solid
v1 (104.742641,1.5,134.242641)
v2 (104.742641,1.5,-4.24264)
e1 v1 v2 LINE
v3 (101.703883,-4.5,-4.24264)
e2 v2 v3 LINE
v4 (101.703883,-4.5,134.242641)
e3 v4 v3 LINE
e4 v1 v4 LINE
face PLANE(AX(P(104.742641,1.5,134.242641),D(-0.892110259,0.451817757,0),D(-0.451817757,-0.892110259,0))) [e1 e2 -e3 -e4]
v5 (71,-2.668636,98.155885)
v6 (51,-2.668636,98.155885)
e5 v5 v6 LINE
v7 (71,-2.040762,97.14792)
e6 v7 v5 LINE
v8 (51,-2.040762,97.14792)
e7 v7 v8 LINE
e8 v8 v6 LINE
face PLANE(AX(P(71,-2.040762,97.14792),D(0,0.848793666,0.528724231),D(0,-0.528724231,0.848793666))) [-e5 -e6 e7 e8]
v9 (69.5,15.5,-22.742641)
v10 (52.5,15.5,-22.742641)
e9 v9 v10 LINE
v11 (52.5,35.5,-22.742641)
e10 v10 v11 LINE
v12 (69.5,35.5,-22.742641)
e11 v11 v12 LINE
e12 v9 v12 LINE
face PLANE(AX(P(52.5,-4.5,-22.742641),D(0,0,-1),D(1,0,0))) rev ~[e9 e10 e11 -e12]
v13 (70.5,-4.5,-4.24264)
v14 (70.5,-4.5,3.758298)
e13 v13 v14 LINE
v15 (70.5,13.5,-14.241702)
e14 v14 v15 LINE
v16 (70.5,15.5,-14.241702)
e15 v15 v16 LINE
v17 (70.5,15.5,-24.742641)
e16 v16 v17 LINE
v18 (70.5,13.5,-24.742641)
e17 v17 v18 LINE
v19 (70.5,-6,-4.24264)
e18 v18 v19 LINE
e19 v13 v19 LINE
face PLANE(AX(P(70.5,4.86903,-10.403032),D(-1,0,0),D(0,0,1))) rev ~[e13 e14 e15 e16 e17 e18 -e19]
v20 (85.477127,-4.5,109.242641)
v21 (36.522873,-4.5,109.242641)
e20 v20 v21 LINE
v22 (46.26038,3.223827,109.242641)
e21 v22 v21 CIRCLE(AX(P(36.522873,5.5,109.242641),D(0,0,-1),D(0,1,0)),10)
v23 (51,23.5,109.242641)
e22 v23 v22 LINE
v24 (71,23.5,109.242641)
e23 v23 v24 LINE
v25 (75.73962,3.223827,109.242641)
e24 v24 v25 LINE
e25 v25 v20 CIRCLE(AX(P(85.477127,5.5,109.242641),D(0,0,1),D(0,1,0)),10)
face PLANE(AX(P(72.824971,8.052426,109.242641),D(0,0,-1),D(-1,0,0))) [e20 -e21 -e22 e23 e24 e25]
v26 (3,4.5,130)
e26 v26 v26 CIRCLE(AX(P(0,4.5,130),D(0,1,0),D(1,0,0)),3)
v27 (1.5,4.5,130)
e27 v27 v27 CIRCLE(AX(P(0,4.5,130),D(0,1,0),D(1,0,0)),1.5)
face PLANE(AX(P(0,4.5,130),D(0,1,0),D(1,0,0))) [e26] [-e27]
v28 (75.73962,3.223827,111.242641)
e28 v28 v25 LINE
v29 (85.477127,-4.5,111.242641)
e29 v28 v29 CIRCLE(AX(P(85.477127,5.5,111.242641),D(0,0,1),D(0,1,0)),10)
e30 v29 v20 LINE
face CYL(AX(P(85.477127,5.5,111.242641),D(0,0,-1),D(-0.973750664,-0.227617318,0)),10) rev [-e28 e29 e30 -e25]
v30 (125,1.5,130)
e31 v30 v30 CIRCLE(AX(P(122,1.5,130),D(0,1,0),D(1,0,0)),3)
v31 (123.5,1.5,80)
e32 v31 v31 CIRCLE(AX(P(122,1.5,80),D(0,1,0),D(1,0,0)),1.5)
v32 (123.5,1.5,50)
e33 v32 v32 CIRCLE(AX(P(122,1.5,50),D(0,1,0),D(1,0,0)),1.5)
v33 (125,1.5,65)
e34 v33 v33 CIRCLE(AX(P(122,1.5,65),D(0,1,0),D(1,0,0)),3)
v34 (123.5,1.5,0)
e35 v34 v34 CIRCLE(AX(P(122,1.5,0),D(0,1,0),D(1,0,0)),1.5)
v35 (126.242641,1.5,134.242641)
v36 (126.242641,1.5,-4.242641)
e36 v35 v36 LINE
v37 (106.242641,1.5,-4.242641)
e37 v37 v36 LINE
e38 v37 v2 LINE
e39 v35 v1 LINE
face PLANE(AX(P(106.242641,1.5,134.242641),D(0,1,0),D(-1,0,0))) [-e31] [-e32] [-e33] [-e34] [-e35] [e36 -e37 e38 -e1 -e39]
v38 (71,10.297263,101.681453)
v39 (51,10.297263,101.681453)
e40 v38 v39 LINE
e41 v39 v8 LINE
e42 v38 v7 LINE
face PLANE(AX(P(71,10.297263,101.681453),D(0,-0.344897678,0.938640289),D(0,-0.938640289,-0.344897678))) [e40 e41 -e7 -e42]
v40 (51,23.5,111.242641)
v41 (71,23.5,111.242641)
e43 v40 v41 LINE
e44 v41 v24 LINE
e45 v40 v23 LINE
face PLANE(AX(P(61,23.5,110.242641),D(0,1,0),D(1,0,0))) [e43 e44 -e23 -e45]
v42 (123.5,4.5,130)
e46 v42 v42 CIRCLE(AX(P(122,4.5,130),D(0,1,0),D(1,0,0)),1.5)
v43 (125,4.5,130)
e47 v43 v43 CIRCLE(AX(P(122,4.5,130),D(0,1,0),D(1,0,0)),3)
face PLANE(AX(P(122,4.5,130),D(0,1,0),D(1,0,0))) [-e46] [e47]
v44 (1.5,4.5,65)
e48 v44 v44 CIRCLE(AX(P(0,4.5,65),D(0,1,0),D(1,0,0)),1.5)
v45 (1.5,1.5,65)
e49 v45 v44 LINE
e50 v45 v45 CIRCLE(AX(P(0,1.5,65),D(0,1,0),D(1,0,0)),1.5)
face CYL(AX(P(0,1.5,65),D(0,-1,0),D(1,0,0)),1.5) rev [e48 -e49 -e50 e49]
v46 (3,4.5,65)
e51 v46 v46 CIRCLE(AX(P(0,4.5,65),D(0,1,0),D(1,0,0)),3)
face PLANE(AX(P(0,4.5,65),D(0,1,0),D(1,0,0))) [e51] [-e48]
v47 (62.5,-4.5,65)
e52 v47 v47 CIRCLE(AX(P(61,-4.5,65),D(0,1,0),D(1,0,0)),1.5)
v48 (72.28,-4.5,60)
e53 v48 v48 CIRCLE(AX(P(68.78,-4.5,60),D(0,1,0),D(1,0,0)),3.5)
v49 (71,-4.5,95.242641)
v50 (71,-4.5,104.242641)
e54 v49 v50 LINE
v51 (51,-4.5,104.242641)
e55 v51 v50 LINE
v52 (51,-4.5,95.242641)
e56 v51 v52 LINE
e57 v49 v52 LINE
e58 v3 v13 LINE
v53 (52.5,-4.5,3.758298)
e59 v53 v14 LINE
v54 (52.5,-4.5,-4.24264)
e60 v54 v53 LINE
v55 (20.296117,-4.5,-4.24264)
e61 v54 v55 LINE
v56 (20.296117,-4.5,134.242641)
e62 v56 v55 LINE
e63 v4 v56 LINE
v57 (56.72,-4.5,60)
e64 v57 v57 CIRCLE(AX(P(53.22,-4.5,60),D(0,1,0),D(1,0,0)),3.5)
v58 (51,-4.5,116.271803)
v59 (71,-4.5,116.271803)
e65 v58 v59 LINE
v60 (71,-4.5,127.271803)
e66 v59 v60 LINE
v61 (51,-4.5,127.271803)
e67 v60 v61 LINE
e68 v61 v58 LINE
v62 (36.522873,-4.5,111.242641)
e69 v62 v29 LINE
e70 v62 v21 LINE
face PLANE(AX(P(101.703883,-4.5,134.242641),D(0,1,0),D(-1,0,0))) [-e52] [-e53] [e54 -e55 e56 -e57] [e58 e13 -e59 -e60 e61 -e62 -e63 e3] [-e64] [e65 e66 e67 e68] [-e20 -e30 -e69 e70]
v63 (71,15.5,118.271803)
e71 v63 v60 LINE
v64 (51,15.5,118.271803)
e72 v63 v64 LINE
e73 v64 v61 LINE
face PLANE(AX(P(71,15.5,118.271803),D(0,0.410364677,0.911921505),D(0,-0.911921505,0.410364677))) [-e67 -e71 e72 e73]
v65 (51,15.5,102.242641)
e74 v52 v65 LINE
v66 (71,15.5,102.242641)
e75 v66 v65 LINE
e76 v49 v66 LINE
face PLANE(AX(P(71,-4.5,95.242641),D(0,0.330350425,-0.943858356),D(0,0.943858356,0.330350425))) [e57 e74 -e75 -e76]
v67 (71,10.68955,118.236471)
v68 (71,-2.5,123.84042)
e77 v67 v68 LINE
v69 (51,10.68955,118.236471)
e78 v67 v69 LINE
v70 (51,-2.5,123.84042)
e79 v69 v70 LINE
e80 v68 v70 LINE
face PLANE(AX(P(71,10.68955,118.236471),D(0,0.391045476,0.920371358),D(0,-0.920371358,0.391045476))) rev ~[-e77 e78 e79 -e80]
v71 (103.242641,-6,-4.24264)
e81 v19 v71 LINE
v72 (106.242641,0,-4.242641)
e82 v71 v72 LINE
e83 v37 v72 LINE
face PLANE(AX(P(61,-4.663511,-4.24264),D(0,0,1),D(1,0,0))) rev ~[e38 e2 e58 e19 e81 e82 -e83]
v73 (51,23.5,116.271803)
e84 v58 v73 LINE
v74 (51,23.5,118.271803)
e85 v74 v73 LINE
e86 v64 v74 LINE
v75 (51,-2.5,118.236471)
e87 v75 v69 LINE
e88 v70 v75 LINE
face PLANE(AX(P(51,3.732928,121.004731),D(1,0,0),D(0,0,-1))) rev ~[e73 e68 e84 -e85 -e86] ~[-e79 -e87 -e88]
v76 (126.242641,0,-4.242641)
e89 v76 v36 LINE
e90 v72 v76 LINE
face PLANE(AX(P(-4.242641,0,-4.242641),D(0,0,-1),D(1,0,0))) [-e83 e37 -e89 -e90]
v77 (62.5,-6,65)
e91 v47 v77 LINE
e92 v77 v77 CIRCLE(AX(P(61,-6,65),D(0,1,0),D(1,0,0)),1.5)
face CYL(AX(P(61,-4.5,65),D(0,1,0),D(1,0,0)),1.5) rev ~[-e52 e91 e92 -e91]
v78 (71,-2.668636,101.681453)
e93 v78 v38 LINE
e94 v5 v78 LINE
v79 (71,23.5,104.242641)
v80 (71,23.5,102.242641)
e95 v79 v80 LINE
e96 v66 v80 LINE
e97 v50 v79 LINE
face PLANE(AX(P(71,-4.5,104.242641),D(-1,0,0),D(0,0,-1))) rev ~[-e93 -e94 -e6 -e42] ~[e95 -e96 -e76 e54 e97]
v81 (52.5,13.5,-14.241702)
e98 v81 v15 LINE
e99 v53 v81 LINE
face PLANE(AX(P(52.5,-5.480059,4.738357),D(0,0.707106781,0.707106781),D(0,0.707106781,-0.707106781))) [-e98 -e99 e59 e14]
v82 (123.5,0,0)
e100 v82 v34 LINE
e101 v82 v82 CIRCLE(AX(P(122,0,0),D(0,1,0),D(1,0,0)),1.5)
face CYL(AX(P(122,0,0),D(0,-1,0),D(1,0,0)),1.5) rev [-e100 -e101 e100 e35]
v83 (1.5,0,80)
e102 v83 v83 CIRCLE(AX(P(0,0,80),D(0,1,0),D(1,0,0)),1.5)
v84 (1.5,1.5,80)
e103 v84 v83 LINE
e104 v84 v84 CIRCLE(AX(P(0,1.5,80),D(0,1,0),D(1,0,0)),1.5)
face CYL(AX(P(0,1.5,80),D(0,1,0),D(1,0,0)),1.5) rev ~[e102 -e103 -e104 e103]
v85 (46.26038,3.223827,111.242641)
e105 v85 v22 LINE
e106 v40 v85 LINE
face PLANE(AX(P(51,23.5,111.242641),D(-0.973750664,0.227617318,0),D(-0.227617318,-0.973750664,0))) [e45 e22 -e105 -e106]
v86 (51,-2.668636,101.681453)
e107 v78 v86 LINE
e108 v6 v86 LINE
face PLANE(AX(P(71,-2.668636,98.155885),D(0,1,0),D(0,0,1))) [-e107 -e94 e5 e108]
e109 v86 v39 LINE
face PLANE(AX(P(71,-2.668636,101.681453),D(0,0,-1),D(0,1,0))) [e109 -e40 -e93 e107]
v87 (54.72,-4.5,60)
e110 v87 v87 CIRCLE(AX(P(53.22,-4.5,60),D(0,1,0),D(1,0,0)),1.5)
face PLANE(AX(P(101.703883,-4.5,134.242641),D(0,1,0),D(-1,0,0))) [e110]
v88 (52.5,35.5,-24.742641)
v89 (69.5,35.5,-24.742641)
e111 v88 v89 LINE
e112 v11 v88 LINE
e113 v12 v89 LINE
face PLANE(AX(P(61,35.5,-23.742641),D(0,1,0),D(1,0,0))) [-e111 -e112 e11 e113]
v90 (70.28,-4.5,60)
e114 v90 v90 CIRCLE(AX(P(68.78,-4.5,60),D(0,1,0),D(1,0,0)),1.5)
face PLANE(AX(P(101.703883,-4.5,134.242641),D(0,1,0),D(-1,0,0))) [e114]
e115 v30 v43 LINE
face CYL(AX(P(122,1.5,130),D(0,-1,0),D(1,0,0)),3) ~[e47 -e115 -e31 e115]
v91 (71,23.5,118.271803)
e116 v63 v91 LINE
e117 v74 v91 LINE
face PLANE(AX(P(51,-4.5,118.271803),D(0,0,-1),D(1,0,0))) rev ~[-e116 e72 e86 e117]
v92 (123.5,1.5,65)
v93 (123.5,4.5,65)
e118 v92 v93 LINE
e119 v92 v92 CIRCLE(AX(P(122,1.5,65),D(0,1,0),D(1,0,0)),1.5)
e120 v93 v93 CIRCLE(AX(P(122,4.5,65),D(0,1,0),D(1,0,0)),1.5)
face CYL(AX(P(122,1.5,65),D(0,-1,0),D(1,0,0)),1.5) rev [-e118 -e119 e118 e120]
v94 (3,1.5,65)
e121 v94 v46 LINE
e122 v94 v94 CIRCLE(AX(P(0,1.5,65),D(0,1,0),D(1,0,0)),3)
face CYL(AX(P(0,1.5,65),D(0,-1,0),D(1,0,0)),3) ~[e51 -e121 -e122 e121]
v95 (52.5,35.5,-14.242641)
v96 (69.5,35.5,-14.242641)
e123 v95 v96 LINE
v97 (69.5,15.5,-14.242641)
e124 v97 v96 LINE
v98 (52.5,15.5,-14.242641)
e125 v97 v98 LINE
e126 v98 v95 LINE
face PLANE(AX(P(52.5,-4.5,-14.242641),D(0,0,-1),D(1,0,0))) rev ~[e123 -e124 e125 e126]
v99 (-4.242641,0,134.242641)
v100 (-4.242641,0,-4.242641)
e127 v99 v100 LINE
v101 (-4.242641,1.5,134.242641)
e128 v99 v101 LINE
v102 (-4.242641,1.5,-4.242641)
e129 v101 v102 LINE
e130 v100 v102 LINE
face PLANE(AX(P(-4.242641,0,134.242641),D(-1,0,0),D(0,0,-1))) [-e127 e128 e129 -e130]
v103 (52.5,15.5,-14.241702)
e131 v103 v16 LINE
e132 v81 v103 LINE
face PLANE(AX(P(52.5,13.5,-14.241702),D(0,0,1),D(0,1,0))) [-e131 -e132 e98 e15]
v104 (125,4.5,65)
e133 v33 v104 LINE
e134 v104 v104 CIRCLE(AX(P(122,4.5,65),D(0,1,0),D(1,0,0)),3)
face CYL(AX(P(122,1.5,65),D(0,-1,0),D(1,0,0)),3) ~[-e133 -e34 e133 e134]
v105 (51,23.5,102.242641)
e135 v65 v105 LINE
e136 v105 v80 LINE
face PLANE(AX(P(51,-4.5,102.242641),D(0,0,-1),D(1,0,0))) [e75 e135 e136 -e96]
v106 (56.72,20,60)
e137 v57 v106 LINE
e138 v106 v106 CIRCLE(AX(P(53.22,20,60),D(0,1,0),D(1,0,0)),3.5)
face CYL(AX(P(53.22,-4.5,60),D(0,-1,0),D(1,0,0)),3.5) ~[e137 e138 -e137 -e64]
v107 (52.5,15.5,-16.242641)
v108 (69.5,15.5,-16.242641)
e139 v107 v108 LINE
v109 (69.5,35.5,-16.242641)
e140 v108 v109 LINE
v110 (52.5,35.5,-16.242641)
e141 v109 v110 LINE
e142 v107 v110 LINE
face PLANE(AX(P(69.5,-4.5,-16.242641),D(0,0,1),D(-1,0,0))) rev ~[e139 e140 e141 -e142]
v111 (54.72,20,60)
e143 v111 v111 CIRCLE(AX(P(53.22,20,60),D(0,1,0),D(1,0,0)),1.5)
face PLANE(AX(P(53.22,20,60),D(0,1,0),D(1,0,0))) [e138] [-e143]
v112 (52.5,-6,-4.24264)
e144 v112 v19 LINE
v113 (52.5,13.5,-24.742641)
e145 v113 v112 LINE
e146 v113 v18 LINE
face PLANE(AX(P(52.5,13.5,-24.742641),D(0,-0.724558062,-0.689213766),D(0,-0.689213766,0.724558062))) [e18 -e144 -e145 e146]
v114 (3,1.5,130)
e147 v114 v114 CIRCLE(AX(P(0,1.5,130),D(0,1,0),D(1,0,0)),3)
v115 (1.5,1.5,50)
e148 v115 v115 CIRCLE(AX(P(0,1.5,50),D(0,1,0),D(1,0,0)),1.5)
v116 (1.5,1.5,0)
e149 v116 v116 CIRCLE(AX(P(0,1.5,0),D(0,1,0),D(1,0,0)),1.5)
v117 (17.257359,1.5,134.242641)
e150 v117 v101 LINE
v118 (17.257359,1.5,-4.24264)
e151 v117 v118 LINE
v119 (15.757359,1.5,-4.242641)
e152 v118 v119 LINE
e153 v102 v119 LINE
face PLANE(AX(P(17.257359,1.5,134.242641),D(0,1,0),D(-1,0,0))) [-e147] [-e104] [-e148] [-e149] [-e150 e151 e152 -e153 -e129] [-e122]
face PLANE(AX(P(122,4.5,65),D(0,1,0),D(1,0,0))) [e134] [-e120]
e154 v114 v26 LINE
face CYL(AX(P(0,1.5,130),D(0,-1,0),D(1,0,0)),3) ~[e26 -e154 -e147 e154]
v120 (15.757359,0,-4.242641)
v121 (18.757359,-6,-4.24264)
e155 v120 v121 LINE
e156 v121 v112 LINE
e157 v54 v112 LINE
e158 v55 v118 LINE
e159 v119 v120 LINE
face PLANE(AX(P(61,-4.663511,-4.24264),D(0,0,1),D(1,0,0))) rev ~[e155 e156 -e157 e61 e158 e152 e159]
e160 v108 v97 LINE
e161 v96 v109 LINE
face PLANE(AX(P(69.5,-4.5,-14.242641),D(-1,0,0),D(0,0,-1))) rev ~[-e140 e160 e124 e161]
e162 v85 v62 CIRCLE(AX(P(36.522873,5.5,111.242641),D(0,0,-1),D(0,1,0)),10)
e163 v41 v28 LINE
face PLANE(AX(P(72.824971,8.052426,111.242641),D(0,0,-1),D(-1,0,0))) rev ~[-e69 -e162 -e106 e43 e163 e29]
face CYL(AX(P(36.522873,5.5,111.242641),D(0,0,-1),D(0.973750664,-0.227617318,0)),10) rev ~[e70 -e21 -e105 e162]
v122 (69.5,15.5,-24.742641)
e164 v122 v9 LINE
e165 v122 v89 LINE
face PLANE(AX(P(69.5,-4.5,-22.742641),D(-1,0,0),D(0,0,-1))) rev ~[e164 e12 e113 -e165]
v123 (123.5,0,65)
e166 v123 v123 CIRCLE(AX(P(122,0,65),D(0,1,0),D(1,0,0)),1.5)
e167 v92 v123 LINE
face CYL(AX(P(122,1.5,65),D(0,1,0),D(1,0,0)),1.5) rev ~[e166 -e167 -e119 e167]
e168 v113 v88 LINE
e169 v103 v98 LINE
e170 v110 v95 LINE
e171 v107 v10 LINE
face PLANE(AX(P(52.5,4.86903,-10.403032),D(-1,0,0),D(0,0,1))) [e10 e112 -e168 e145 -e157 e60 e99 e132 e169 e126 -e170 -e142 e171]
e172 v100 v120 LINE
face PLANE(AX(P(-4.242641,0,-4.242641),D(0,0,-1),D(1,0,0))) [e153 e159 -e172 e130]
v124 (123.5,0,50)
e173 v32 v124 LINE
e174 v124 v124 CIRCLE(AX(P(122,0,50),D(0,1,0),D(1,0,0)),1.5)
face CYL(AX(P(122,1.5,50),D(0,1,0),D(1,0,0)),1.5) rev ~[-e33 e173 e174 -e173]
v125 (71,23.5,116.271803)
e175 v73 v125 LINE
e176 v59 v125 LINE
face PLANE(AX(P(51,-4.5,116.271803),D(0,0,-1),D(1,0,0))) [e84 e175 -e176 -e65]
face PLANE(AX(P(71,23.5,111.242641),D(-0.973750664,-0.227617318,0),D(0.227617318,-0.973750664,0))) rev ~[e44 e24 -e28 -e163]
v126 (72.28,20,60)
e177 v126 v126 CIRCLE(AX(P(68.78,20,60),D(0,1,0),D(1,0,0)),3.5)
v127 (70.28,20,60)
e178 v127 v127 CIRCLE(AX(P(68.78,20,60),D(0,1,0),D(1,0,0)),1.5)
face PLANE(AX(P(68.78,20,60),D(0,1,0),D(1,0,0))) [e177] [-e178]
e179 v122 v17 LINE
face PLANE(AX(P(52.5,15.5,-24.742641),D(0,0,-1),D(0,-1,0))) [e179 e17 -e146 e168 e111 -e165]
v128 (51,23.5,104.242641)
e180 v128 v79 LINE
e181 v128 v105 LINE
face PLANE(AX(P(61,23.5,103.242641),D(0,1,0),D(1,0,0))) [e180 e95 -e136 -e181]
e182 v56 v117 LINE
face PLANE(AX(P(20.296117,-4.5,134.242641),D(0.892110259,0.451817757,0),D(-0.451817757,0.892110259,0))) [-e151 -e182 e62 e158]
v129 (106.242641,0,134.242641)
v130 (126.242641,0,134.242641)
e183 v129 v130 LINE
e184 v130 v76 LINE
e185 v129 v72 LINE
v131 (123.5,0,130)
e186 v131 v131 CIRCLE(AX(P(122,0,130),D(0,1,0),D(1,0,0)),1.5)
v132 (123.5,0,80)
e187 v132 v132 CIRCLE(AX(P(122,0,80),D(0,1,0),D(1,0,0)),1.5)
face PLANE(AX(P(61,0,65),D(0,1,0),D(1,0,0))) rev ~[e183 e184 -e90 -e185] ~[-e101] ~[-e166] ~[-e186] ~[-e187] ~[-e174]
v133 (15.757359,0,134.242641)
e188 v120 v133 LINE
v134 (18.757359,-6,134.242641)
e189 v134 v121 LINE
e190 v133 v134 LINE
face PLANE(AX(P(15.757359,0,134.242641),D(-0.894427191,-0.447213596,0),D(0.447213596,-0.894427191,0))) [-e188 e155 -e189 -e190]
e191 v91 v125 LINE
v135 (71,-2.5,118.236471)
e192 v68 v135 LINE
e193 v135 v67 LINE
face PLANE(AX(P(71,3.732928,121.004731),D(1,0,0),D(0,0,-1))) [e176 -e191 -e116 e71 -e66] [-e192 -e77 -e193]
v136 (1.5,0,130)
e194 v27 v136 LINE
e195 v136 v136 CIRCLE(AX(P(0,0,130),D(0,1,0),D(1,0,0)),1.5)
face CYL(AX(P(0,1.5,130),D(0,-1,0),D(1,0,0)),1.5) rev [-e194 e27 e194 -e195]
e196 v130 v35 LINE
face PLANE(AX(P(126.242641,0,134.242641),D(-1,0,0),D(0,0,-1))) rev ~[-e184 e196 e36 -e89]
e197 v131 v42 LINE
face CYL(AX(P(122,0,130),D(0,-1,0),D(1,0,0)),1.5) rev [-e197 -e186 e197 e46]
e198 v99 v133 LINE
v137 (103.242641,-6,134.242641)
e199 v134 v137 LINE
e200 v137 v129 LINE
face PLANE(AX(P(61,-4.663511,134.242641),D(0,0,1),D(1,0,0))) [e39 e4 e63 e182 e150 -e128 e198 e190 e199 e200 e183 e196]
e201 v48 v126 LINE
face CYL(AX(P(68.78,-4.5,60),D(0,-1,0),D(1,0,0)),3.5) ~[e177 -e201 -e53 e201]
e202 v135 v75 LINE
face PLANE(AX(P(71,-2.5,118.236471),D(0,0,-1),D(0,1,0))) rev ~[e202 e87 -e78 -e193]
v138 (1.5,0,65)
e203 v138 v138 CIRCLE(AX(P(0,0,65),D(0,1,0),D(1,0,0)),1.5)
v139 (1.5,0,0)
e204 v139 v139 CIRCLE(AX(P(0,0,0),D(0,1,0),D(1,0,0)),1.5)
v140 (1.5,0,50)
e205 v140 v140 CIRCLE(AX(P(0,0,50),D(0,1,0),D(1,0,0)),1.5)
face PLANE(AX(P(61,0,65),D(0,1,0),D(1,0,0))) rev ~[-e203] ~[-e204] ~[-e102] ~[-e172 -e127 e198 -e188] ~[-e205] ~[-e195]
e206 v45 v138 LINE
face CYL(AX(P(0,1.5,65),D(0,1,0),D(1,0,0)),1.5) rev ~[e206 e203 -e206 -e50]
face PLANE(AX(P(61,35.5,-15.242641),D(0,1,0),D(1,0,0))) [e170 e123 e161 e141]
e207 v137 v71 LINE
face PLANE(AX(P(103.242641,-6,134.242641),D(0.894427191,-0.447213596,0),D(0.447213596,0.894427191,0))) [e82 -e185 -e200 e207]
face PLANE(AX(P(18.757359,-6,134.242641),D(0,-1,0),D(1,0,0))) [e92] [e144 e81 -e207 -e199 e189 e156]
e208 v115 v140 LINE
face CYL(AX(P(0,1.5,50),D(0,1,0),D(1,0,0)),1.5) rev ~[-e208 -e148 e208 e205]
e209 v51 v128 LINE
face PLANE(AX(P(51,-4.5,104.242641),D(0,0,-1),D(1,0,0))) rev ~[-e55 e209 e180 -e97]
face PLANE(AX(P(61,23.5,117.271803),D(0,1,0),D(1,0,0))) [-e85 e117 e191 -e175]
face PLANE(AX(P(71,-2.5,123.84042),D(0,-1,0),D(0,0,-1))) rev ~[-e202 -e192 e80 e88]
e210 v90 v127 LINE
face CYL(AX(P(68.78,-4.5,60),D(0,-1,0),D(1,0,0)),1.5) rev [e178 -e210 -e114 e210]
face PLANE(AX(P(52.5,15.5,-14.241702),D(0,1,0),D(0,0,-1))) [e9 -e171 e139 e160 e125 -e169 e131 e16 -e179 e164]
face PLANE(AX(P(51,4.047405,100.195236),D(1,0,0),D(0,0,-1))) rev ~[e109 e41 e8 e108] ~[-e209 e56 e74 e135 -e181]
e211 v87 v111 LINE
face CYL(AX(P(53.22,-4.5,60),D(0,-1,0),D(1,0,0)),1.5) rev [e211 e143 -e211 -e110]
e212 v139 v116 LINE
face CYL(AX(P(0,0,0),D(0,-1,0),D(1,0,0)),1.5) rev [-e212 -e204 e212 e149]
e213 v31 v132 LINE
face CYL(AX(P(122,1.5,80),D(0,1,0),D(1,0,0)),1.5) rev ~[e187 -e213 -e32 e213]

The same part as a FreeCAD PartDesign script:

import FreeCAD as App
import Part
import Sketcher
from FreeCAD import Vector
Q = App.Units.Quantity


def edges_at(feature, points):
    """Names of the edges that pass closest to the given points."""
    edges = feature.Shape.Edges
    near = lambda p: min(range(len(edges)), key=lambda i: edges[i].distToShape(Part.Vertex(*p))[0])
    return sorted({f"Edge{near(p) + 1}" for p in points})


def add_polygon(sketch, points):
    """Adds a closed chain of lines whose ends are joined by coincident constraints."""
    first, n = sketch.GeometryCount, len(points)
    for a, b in zip(points, points[1:] + points[:1]):
        sketch.addGeometry(Part.LineSegment(App.Vector(*a, 0), App.Vector(*b, 0)), False)
    for i in range(n):
        sketch.addConstraint(Sketcher.Constraint("Coincident", first + i, 2, first + (i + 1) % n, 1))

doc = App.newDocument("Part")
body = doc.addObject("PartDesign::Body", "Body")
body.AllowCompound = True

sketch1 = body.newObject("Sketcher::SketchObject", "Sketch")
sketch1.AttachmentSupport = (doc.getObject("XZ_Plane"), [""])
sketch1.MapMode = "FlatFace"
add_polygon(sketch1, [(-4.242641, -4.242641), (-4.242641, 134.242641), (126.242641, 134.242641), (126.242641, -4.242641)])
sketch1.addGeometry(Part.Circle(Vector(0, 130, 0), Vector(0, 0, 1), 1.5), False)
sketch1.addGeometry(Part.Circle(Vector(122, 130, 0), Vector(0, 0, 1), 1.5), False)
sketch1.addGeometry(Part.Circle(Vector(0, 0, 0), Vector(0, 0, 1), 1.5), False)
sketch1.addGeometry(Part.Circle(Vector(122, 0, 0), Vector(0, 0, 1), 1.5), False)
sketch1.addConstraint(Sketcher.Constraint("Vertical", 0))
sketch1.addConstraint(Sketcher.Constraint("Horizontal", 1))
sketch1.addConstraint(Sketcher.Constraint("Vertical", 2))
sketch1.addConstraint(Sketcher.Constraint("Horizontal", 3))
sketch1.addConstraint(Sketcher.Constraint("Coincident", 6, 3, -1, 1))
sketch1.addConstraint(Sketcher.Constraint("Equal", 4, 5))
sketch1.addConstraint(Sketcher.Constraint("Equal", 5, 6))
sketch1.addConstraint(Sketcher.Constraint("Equal", 6, 7))
sketch1.addConstraint(Sketcher.Constraint("PointOnObject", 4, 3, -2))
sketch1.addConstraint(Sketcher.Constraint("PointOnObject", 7, 3, -1))
sketch1.addConstraint(Sketcher.Constraint("Horizontal", 4, 3, 5, 3))
sketch1.addConstraint(Sketcher.Constraint("Vertical", 5, 3, 7, 3))
sketch1.addConstraint(Sketcher.Constraint("Diameter", 4, 3.0))
sketch1.addConstraint(Sketcher.Constraint("DistanceY", -1, 1, 4, 3, 130.0))
sketch1.addConstraint(Sketcher.Constraint("DistanceX", -1, 1, 5, 3, 122.0))
sketch1.addConstraint(Sketcher.Constraint("DistanceX", 1, 1, 1, 2, 130.485281))
sketch1.addConstraint(Sketcher.Constraint("DistanceY", 0, 1, 0, 2, 138.485281))
sketch1.addConstraint(Sketcher.Constraint("DistanceX", 0, 2, -1, 1, 4.242641))
sketch1.addConstraint(Sketcher.Constraint("DistanceY", -1, 1, 0, 2, 134.242641))
pad1 = body.newObject("PartDesign::Pad", "Pad")
pad1.Profile = sketch1
pad1.Length = 1.5
pad1.Reversed = True

sketch2 = body.newObject("Sketcher::SketchObject", "Sketch001")
sketch2.AttachmentSupport = (doc.getObject("XZ_Plane"), [""])
sketch2.MapMode = "FlatFace"
sketch2.AttachmentOffset = App.Placement(Vector(0, 0, -1.5), App.Rotation())
add_polygon(sketch2, [(15.757359, -4.242641), (15.757359, 134.242641), (106.242641, 134.242641), (106.242641, -4.242641)])
sketch2.addConstraint(Sketcher.Constraint("Vertical", 0))
sketch2.addConstraint(Sketcher.Constraint("Horizontal", 1))
sketch2.addConstraint(Sketcher.Constraint("Vertical", 2))
sketch2.addConstraint(Sketcher.Constraint("Horizontal", 3))
sketch2.addConstraint(Sketcher.Constraint("DistanceX", 1, 1, 1, 2, 90.485281))
sketch2.addConstraint(Sketcher.Constraint("DistanceY", 0, 1, 0, 2, 138.485281))
sketch2.addConstraint(Sketcher.Constraint("DistanceX", -1, 1, 0, 2, 15.757359))
sketch2.addConstraint(Sketcher.Constraint("DistanceY", -1, 1, 0, 2, 134.242641))
pocket1 = body.newObject("PartDesign::Pocket", "Pocket")
pocket1.Profile = sketch2
pocket1.Length = 17.5
pocket1.Reversed = True

sketch3 = body.newObject("Sketcher::SketchObject", "Sketch002")
sketch3.AttachmentSupport = (doc.getObject("XY_Plane"), [""])
sketch3.MapMode = "FlatFace"
sketch3.AttachmentOffset = App.Placement(Vector(0, 0, 134.242641), App.Rotation())
add_polygon(sketch3, [(15.757359, 0), (18.757359, -6), (103.242641, -6), (106.242641, 0), (106.242641, 1.5), (104.742641, 1.5), (101.703883, -4.5), (20.296117, -4.5), (17.257359, 1.5), (15.757359, 1.5)])
sketch3.addConstraint(Sketcher.Constraint("Horizontal", 1))
sketch3.addConstraint(Sketcher.Constraint("Vertical", 3))
sketch3.addConstraint(Sketcher.Constraint("Horizontal", 4))
sketch3.addConstraint(Sketcher.Constraint("Horizontal", 6))
sketch3.addConstraint(Sketcher.Constraint("Horizontal", 8))
sketch3.addConstraint(Sketcher.Constraint("Vertical", 9))
sketch3.addConstraint(Sketcher.Constraint("PointOnObject", 2, 2, -1))
sketch3.addConstraint(Sketcher.Constraint("PointOnObject", 9, 2, -1))
sketch3.addConstraint(Sketcher.Constraint("Horizontal", 4, 2, 7, 2))
sketch3.addConstraint(Sketcher.Constraint("Equal", 4, 8))
sketch3.addConstraint(Sketcher.Constraint("Equal", 8, 3))
sketch3.addConstraint(Sketcher.Constraint("Equal", 0, 2))
sketch3.addConstraint(Sketcher.Constraint("Equal", 5, 7))
sketch3.addConstraint(Sketcher.Constraint("DistanceX", 4, 2, 4, 1, 1.5))
sketch3.addConstraint(Sketcher.Constraint("DistanceY", 0, 2, -1, 1, 6.0))
sketch3.addConstraint(Sketcher.Constraint("DistanceX", 1, 2, 2, 2, 3.0))
sketch3.addConstraint(Sketcher.Constraint("DistanceY", 5, 2, 4, 2, 6.0))
sketch3.addConstraint(Sketcher.Constraint("DistanceX", 1, 1, 1, 2, 84.485281))
sketch3.addConstraint(Sketcher.Constraint("DistanceX", 6, 2, 6, 1, 81.407767))
sketch3.addConstraint(Sketcher.Constraint("DistanceX", -1, 1, 0, 2, 18.757359))
pad2 = body.newObject("PartDesign::Pad", "Pad001")
pad2.Profile = sketch3
pad2.Length = 138.485281
pad2.Reversed = True

sketch4 = body.newObject("Sketcher::SketchObject", "Sketch003")
sketch4.AttachmentSupport = (doc.getObject("XZ_Plane"), [""])
sketch4.MapMode = "FlatFace"
sketch4.AttachmentOffset = App.Placement(Vector(0, 0, -1.5), App.Rotation())
sketch4.addGeometry(Part.Circle(Vector(0, 130, 0), Vector(0, 0, 1), 3), False)
sketch4.addGeometry(Part.Circle(Vector(0, 130, 0), Vector(0, 0, 1), 1.5), False)
sketch4.addGeometry(Part.Circle(Vector(122, 130, 0), Vector(0, 0, 1), 3), False)
sketch4.addGeometry(Part.Circle(Vector(122, 130, 0), Vector(0, 0, 1), 1.5), False)
sketch4.addConstraint(Sketcher.Constraint("Coincident", 1, 3, 0, 3))
sketch4.addConstraint(Sketcher.Constraint("Coincident", 3, 3, 2, 3))
sketch4.addConstraint(Sketcher.Constraint("Equal", 0, 2))
sketch4.addConstraint(Sketcher.Constraint("Equal", 1, 3))
sketch4.addConstraint(Sketcher.Constraint("PointOnObject", 0, 3, -2))
sketch4.addConstraint(Sketcher.Constraint("Horizontal", 1, 3, 2, 3))
sketch4.addConstraint(Sketcher.Constraint("Diameter", 0, 6.0))
sketch4.addConstraint(Sketcher.Constraint("Diameter", 1, 3.0))
sketch4.addConstraint(Sketcher.Constraint("DistanceY", -1, 1, 0, 3, 130.0))
sketch4.addConstraint(Sketcher.Constraint("DistanceX", -1, 1, 2, 3, 122.0))
pad3 = body.newObject("PartDesign::Pad", "Pad002")
pad3.Profile = sketch4
pad3.Length = 3
pad3.Reversed = True

sketch5 = body.newObject("Sketcher::SketchObject", "Sketch004")
sketch5.AttachmentSupport = (doc.getObject("XZ_Plane"), [""])
sketch5.MapMode = "FlatFace"
sketch5.AttachmentOffset = App.Placement(Vector(0, 0, -1.5), App.Rotation())
sketch5.addGeometry(Part.Circle(Vector(0, 65, 0), Vector(0, 0, 1), 1.5), False)
sketch5.addGeometry(Part.Circle(Vector(122, 65, 0), Vector(0, 0, 1), 1.5), False)
sketch5.addConstraint(Sketcher.Constraint("Equal", 0, 1))
sketch5.addConstraint(Sketcher.Constraint("PointOnObject", 0, 3, -2))
sketch5.addConstraint(Sketcher.Constraint("Horizontal", 0, 3, 1, 3))
sketch5.addConstraint(Sketcher.Constraint("Diameter", 0, 3.0))
sketch5.addConstraint(Sketcher.Constraint("DistanceY", -1, 1, 0, 3, 65.0))
sketch5.addConstraint(Sketcher.Constraint("DistanceX", -1, 1, 1, 3, 122.0))
pocket2 = body.newObject("PartDesign::Pocket", "Pocket001")
pocket2.Profile = sketch5
pocket2.Length = 3
pocket2.Reversed = True

sketch6 = body.newObject("Sketcher::SketchObject", "Sketch005")
sketch6.AttachmentSupport = (doc.getObject("XZ_Plane"), [""])
sketch6.MapMode = "FlatFace"
sketch6.AttachmentOffset = App.Placement(Vector(0, 0, -1.5), App.Rotation())
sketch6.addGeometry(Part.Circle(Vector(0, 65, 0), Vector(0, 0, 1), 3), False)
sketch6.addGeometry(Part.Circle(Vector(0, 65, 0), Vector(0, 0, 1), 1.5), False)
sketch6.addGeometry(Part.Circle(Vector(122, 65, 0), Vector(0, 0, 1), 3), False)
sketch6.addGeometry(Part.Circle(Vector(122, 65, 0), Vector(0, 0, 1), 1.5), False)
sketch6.addConstraint(Sketcher.Constraint("Coincident", 1, 3, 0, 3))
sketch6.addConstraint(Sketcher.Constraint("Coincident", 3, 3, 2, 3))
sketch6.addConstraint(Sketcher.Constraint("Equal", 0, 2))
sketch6.addConstraint(Sketcher.Constraint("Equal", 1, 3))
sketch6.addConstraint(Sketcher.Constraint("PointOnObject", 0, 3, -2))
sketch6.addConstraint(Sketcher.Constraint("Horizontal", 1, 3, 2, 3))
sketch6.addConstraint(Sketcher.Constraint("Diameter", 0, 6.0))
sketch6.addConstraint(Sketcher.Constraint("Diameter", 1, 3.0))
sketch6.addConstraint(Sketcher.Constraint("DistanceY", -1, 1, 0, 3, 65.0))
sketch6.addConstraint(Sketcher.Constraint("DistanceX", -1, 1, 2, 3, 122.0))
pad4 = body.newObject("PartDesign::Pad", "Pad003")
pad4.Profile = sketch6
pad4.Length = 3
pad4.Reversed = True

sketch7 = body.newObject("Sketcher::SketchObject", "Sketch006")
sketch7.AttachmentSupport = (doc.getObject("XZ_Plane"), [""])
sketch7.MapMode = "FlatFace"
sketch7.AttachmentOffset = App.Placement(Vector(0, 0, -1.5), App.Rotation())
sketch7.addGeometry(Part.Circle(Vector(0, 50, 0), Vector(0, 0, 1), 1.5), False)
sketch7.addGeometry(Part.Circle(Vector(0, 80, 0), Vector(0, 0, 1), 1.5), False)
sketch7.addGeometry(Part.Circle(Vector(122, 80, 0), Vector(0, 0, 1), 1.5), False)
sketch7.addGeometry(Part.Circle(Vector(122, 50, 0), Vector(0, 0, 1), 1.5), False)
sketch7.addConstraint(Sketcher.Constraint("Equal", 0, 1))
sketch7.addConstraint(Sketcher.Constraint("Equal", 1, 2))
sketch7.addConstraint(Sketcher.Constraint("Equal", 2, 3))
sketch7.addConstraint(Sketcher.Constraint("PointOnObject", 0, 3, -2))
sketch7.addConstraint(Sketcher.Constraint("PointOnObject", 1, 3, -2))
sketch7.addConstraint(Sketcher.Constraint("Horizontal", 1, 3, 2, 3))
sketch7.addConstraint(Sketcher.Constraint("Horizontal", 0, 3, 3, 3))
sketch7.addConstraint(Sketcher.Constraint("Vertical", 2, 3, 3, 3))
sketch7.addConstraint(Sketcher.Constraint("Diameter", 0, 3.0))
sketch7.addConstraint(Sketcher.Constraint("DistanceY", -1, 1, 0, 3, 50.0))
sketch7.addConstraint(Sketcher.Constraint("DistanceY", -1, 1, 1, 3, 80.0))
sketch7.addConstraint(Sketcher.Constraint("DistanceX", -1, 1, 2, 3, 122.0))
pocket3 = body.newObject("PartDesign::Pocket", "Pocket002")
pocket3.Profile = sketch7
pocket3.Length = 3
pocket3.Reversed = True

sketch8 = body.newObject("Sketcher::SketchObject", "Sketch007")
sketch8.AttachmentSupport = (doc.getObject("XZ_Plane"), [""])
sketch8.MapMode = "FlatFace"
sketch8.AttachmentOffset = App.Placement(Vector(0, 0, 4.5), App.Rotation())
sketch8.addGeometry(Part.Circle(Vector(53.22, 60, 0), Vector(0, 0, 1), 3.5), False)
sketch8.addGeometry(Part.Circle(Vector(53.22, 60, 0), Vector(0, 0, 1), 1.5), False)
sketch8.addGeometry(Part.Circle(Vector(68.78, 60, 0), Vector(0, 0, 1), 3.5), False)
sketch8.addGeometry(Part.Circle(Vector(68.78, 60, 0), Vector(0, 0, 1), 1.5), False)
sketch8.addConstraint(Sketcher.Constraint("Coincident", 1, 3, 0, 3))
sketch8.addConstraint(Sketcher.Constraint("Coincident", 3, 3, 2, 3))
sketch8.addConstraint(Sketcher.Constraint("Equal", 0, 2))
sketch8.addConstraint(Sketcher.Constraint("Equal", 1, 3))
sketch8.addConstraint(Sketcher.Constraint("Horizontal", 1, 3, 2, 3))
sketch8.addConstraint(Sketcher.Constraint("Diameter", 0, 7.0))
sketch8.addConstraint(Sketcher.Constraint("Diameter", 1, 3.0))
sketch8.addConstraint(Sketcher.Constraint("DistanceY", -1, 1, 0, 3, 60.0))
sketch8.addConstraint(Sketcher.Constraint("DistanceX", -1, 1, 0, 3, 53.22))
sketch8.addConstraint(Sketcher.Constraint("DistanceX", -1, 1, 2, 3, 68.78))
pad5 = body.newObject("PartDesign::Pad", "Pad004")
pad5.Profile = sketch8
pad5.Length = 24.5
pad5.Reversed = True

sketch9 = body.newObject("Sketcher::SketchObject", "Sketch008")
sketch9.AttachmentSupport = (doc.getObject("XZ_Plane"), [""])
sketch9.MapMode = "FlatFace"
sketch9.AttachmentOffset = App.Placement(Vector(0, 0, 4.5), App.Rotation())
add_polygon(sketch9, [(51, 109.242641), (51, 111.242641), (71, 111.242641), (71, 109.242641)])
add_polygon(sketch9, [(51, 102.242641), (51, 104.242641), (71, 104.242641), (71, 102.242641)])
sketch9.addConstraint(Sketcher.Constraint("Vertical", 0))
sketch9.addConstraint(Sketcher.Constraint("Horizontal", 1))
sketch9.addConstraint(Sketcher.Constraint("Vertical", 2))
sketch9.addConstraint(Sketcher.Constraint("Horizontal", 3))
sketch9.addConstraint(Sketcher.Constraint("Vertical", 4))
sketch9.addConstraint(Sketcher.Constraint("Horizontal", 5))
sketch9.addConstraint(Sketcher.Constraint("Vertical", 6))
sketch9.addConstraint(Sketcher.Constraint("Horizontal", 7))
sketch9.addConstraint(Sketcher.Constraint("Vertical", 3, 2, 4, 2))
sketch9.addConstraint(Sketcher.Constraint("Vertical", 2, 2, 5, 2))
sketch9.addConstraint(Sketcher.Constraint("Equal", 2, 4))
sketch9.addConstraint(Sketcher.Constraint("DistanceX", 1, 1, 1, 2, 20.0))
sketch9.addConstraint(Sketcher.Constraint("DistanceY", 0, 1, 0, 2, 2.0))
sketch9.addConstraint(Sketcher.Constraint("DistanceX", -1, 1, 0, 2, 51.0))
sketch9.addConstraint(Sketcher.Constraint("DistanceY", 4, 2, 3, 2, 5.0))
sketch9.addConstraint(Sketcher.Constraint("DistanceY", -1, 1, 0, 2, 111.242641))
pad6 = body.newObject("PartDesign::Pad", "Pad005")
pad6.Profile = sketch9
pad6.Length = 28
pad6.Reversed = True

sketch10 = body.newObject("Sketcher::SketchObject", "Sketch009")
sketch10.AttachmentSupport = (doc.getObject("YZ_Plane"), [""])
sketch10.MapMode = "FlatFace"
sketch10.AttachmentOffset = App.Placement(Vector(0, 0, 71), App.Rotation())
add_polygon(sketch10, [(-4.5, 118.242641), (-4.5, 111.242641), (15.5, 111.242641)])
add_polygon(sketch10, [(-2.668636, 115.329396), (-2.040762, 116.337362), (10.297263, 111.803829), (-2.668636, 111.803829)])
add_polygon(sketch10, [(-4.5, 95.242641), (15.5, 102.242641), (-4.5, 102.242641)])
add_polygon(sketch10, [(-2.668636, 101.681453), (10.297263, 101.681453), (-2.040762, 97.14792), (-2.668636, 98.155885)])
sketch10.addConstraint(Sketcher.Constraint("Vertical", 0))
sketch10.addConstraint(Sketcher.Constraint("Horizontal", 1))
sketch10.addConstraint(Sketcher.Constraint("Horizontal", 5))
sketch10.addConstraint(Sketcher.Constraint("Vertical", 6))
sketch10.addConstraint(Sketcher.Constraint("Horizontal", 8))
sketch10.addConstraint(Sketcher.Constraint("Vertical", 9))
sketch10.addConstraint(Sketcher.Constraint("Horizontal", 10))
sketch10.addConstraint(Sketcher.Constraint("Vertical", 13))
sketch10.addConstraint(Sketcher.Constraint("Vertical", 1, 2, 7, 2))
sketch10.addConstraint(Sketcher.Constraint("Vertical", 2, 2, 8, 2))
sketch10.addConstraint(Sketcher.Constraint("Vertical", 4, 2, 10, 2))
sketch10.addConstraint(Sketcher.Constraint("Vertical", 3, 2, 11, 2))
sketch10.addConstraint(Sketcher.Constraint("Vertical", 6, 2, 12, 2))
sketch10.addConstraint(Sketcher.Constraint("Equal", 0, 9))
sketch10.addConstraint(Sketcher.Constraint("Equal", 6, 13))
sketch10.addConstraint(Sketcher.Constraint("Equal", 4, 11))
sketch10.addConstraint(Sketcher.Constraint("DistanceX", 1, 1, 1, 2, 20.0))
sketch10.addConstraint(Sketcher.Constraint("DistanceY", 0, 2, 0, 1, 7.0))
sketch10.addConstraint(Sketcher.Constraint("DistanceY", 7, 2, 1, 2, 9.0))
sketch10.addConstraint(Sketcher.Constraint("DistanceX", 0, 2, -1, 1, 4.5))
sketch10.addConstraint(Sketcher.Constraint("DistanceX", 5, 2, 5, 1, 12.9659))
sketch10.addConstraint(Sketcher.Constraint("DistanceY", 6, 1, 6, 2, 3.525568))
sketch10.addConstraint(Sketcher.Constraint("DistanceY", -1, 1, 0, 2, 111.242641))
sketch10.addConstraint(Sketcher.Constraint("DistanceY", -1, 1, 3, 2, 116.337362))
sketch10.addConstraint(Sketcher.Constraint("DistanceY", -1, 1, 4, 2, 111.803829))
sketch10.addConstraint(Sketcher.Constraint("DistanceY", -1, 1, 11, 2, 97.14792))
sketch10.addConstraint(Sketcher.Constraint("Distance", 3, 1.187527))
sketch10.addConstraint(Sketcher.Constraint("DistanceX", 3, 2, -1, 1, 2.040762))
pad7 = body.newObject("PartDesign::Pad", "Pad006")
pad7.Profile = sketch10
pad7.Length = 20
pad7.Reversed = True

sketch11 = body.newObject("Sketcher::SketchObject", "Sketch010")
sketch11.AttachmentSupport = (doc.getObject("XZ_Plane"), [""])
sketch11.MapMode = "FlatFace"
sketch11.AttachmentOffset = App.Placement(Vector(0, 0, 4.5), App.Rotation())
sketch11.addGeometry(Part.Circle(Vector(61, 65, 0), Vector(0, 0, 1), 1.5), False)
sketch11.addConstraint(Sketcher.Constraint("Diameter", 0, 3.0))
sketch11.addConstraint(Sketcher.Constraint("DistanceX", -1, 1, 0, 3, 61.0))
sketch11.addConstraint(Sketcher.Constraint("DistanceY", -1, 1, 0, 3, 65.0))
pocket4 = body.newObject("PartDesign::Pocket", "Pocket003")
pocket4.Profile = sketch11
pocket4.Length = 16
pocket4.Reversed = True
body2 = doc.addObject("PartDesign::Body", "Body001")

sketch12 = body2.newObject("Sketcher::SketchObject", "Sketch011")
sketch12.AttachmentSupport = (doc.getObject("XZ_Plane001"), [""])
sketch12.MapMode = "FlatFace"
sketch12.AttachmentOffset = App.Placement(Vector(0, 0, 4.5), App.Rotation())
add_polygon(sketch12, [(52.5, -14.242641), (69.5, -14.242641), (69.5, -16.242641), (52.5, -16.242641)])
sketch12.addConstraint(Sketcher.Constraint("Horizontal", 0))
sketch12.addConstraint(Sketcher.Constraint("Vertical", 1))
sketch12.addConstraint(Sketcher.Constraint("Horizontal", 2))
sketch12.addConstraint(Sketcher.Constraint("Vertical", 3))
sketch12.addConstraint(Sketcher.Constraint("DistanceX", 0, 1, 0, 2, 17.0))
sketch12.addConstraint(Sketcher.Constraint("DistanceY", 1, 2, 1, 1, 2.0))
sketch12.addConstraint(Sketcher.Constraint("DistanceX", -1, 1, 0, 2, 69.5))
sketch12.addConstraint(Sketcher.Constraint("DistanceY", 0, 2, -1, 1, 14.242641))
pad8 = body2.newObject("PartDesign::Pad", "Pad007")
pad8.Profile = sketch12
pad8.Length = 40
pad8.Reversed = True
body3 = doc.addObject("PartDesign::Body", "Body002")

sketch13 = body3.newObject("Sketcher::SketchObject", "Sketch012")
sketch13.AttachmentSupport = (doc.getObject("XZ_Plane002"), [""])
sketch13.MapMode = "FlatFace"
sketch13.AttachmentOffset = App.Placement(Vector(0, 0, 4.5), App.Rotation())
add_polygon(sketch13, [(52.5, -24.742641), (52.5, -22.742641), (69.5, -22.742641), (69.5, -24.742641)])
sketch13.addConstraint(Sketcher.Constraint("Vertical", 0))
sketch13.addConstraint(Sketcher.Constraint("Horizontal", 1))
sketch13.addConstraint(Sketcher.Constraint("Vertical", 2))
sketch13.addConstraint(Sketcher.Constraint("Horizontal", 3))
sketch13.addConstraint(Sketcher.Constraint("DistanceX", 1, 1, 1, 2, 17.0))
sketch13.addConstraint(Sketcher.Constraint("DistanceY", 0, 1, 0, 2, 2.0))
sketch13.addConstraint(Sketcher.Constraint("DistanceX", -1, 1, 0, 2, 52.5))
sketch13.addConstraint(Sketcher.Constraint("DistanceY", 0, 2, -1, 1, 22.742641))
pad9 = body3.newObject("PartDesign::Pad", "Pad008")
pad9.Profile = sketch13
pad9.Length = 40
pad9.Reversed = True
body4 = doc.addObject("PartDesign::Body", "Body003")

sketch14 = body4.newObject("Sketcher::SketchObject", "Sketch013")
sketch14.AttachmentSupport = (doc.getObject("XZ_Plane003"), [""])
sketch14.MapMode = "FlatFace"
sketch14.AttachmentOffset = App.Placement(Vector(0, 0, 4.5), App.Rotation())
add_polygon(sketch14, [(46.194099, -10.741129), (46.194099, -26.58444), (75.730557, -26.58444), (75.730557, -10.741129)])
sketch14.addConstraint(Sketcher.Constraint("Vertical", 0))
sketch14.addConstraint(Sketcher.Constraint("Horizontal", 1))
sketch14.addConstraint(Sketcher.Constraint("Vertical", 2))
sketch14.addConstraint(Sketcher.Constraint("Horizontal", 3))
sketch14.addConstraint(Sketcher.Constraint("DistanceX", 1, 1, 1, 2, 29.536458))
sketch14.addConstraint(Sketcher.Constraint("DistanceY", 0, 2, 0, 1, 15.843311))
sketch14.addConstraint(Sketcher.Constraint("DistanceX", -1, 1, 0, 2, 46.194099))
sketch14.addConstraint(Sketcher.Constraint("DistanceY", 0, 2, -1, 1, 26.58444))
pad10 = body4.newObject("PartDesign::Pad", "Pad009")
pad10.Profile = sketch14
pad10.Length = 20
pad10.Reversed = True
doc.recompute()

body5 = doc.addObject("PartDesign::Body", "Body004")
body5.BaseFeature = body4
boolean = body2.newObject("PartDesign::Boolean", "Boolean")
boolean.Type = "Cut"
boolean.addObjects([body5])
doc.recompute()

boolean2 = body3.newObject("PartDesign::Boolean", "Boolean001")
boolean2.Type = "Cut"
boolean2.addObjects([body4])
body.AllowCompound = True
doc.recompute()

boolean3 = body.newObject("PartDesign::Boolean", "Boolean002")
boolean3.Type = "Fuse"
boolean3.addObjects([body2])
doc.recompute()

boolean4 = body.newObject("PartDesign::Boolean", "Boolean003")
boolean4.Type = "Fuse"
boolean4.addObjects([body3])

sketch15 = body.newObject("Sketcher::SketchObject", "Sketch014")
sketch15.AttachmentSupport = (doc.getObject("YZ_Plane"), [""])
sketch15.MapMode = "FlatFace"
sketch15.AttachmentOffset = App.Placement(Vector(0, 0, 52.5), App.Rotation())
add_polygon(sketch15, [(13.5, -24.742641), (-6, -4.242641), (-5.480059, 4.738357), (13.5, -14.241702), (15.5, -14.241702), (15.5, -24.742641)])
sketch15.addConstraint(Sketcher.Constraint("Horizontal", 3))
sketch15.addConstraint(Sketcher.Constraint("Vertical", 4))
sketch15.addConstraint(Sketcher.Constraint("Horizontal", 5))
sketch15.addConstraint(Sketcher.Constraint("Vertical", 2, 2, 5, 2))
sketch15.addConstraint(Sketcher.Constraint("DistanceX", 3, 1, 3, 2, 2.0))
sketch15.addConstraint(Sketcher.Constraint("Angle", 2, Q("-45 deg")))
sketch15.addConstraint(Sketcher.Constraint("DistanceX", 0, 2, -1, 1, 6.0))
sketch15.addConstraint(Sketcher.Constraint("DistanceX", -1, 1, 2, 2, 13.5))
sketch15.addConstraint(Sketcher.Constraint("DistanceY", 4, 2, 0, 2, 20.5))
sketch15.addConstraint(Sketcher.Constraint("DistanceY", 4, 2, 4, 1, 10.500939))
sketch15.addConstraint(Sketcher.Constraint("DistanceY", 0, 2, -1, 1, 4.242641))
sketch15.addConstraint(Sketcher.Constraint("DistanceX", 1, 2, -1, 1, 5.480059))
pad11 = body.newObject("PartDesign::Pad", "Pad010")
pad11.Profile = sketch15
pad11.Length = 18

sketch16 = body.newObject("Sketcher::SketchObject", "Sketch015")
sketch16.AttachmentSupport = (doc.getObject("YZ_Plane"), [""])
sketch16.MapMode = "FlatFace"
sketch16.AttachmentOffset = App.Placement(Vector(0, 0, 51), App.Rotation())
add_polygon(sketch16, [(15.5, 111.242641), (-4.5, 111.242641), (-4.5, 118.242641)])
sketch16.addConstraint(Sketcher.Constraint("Horizontal", 0))
sketch16.addConstraint(Sketcher.Constraint("Vertical", 1))
sketch16.addConstraint(Sketcher.Constraint("DistanceX", 0, 2, 0, 1, 20.0))
sketch16.addConstraint(Sketcher.Constraint("DistanceY", 1, 1, 1, 2, 7.0))
sketch16.addConstraint(Sketcher.Constraint("DistanceX", 0, 2, -1, 1, 4.5))
sketch16.addConstraint(Sketcher.Constraint("DistanceY", -1, 1, 0, 2, 111.242641))
pocket5 = body.newObject("PartDesign::Pocket", "Pocket004")
pocket5.Profile = sketch16
pocket5.Length = 26
pocket5.Reversed = True

sketch17 = body.newObject("Sketcher::SketchObject", "Sketch016")
sketch17.AttachmentSupport = (doc.getObject("XY_Plane"), [""])
sketch17.MapMode = "FlatFace"
sketch17.AttachmentOffset = App.Placement(Vector(0, 0, 111.242641), App.Rotation())
add_polygon(sketch17, [(77.545089, -4.5), (71, 23.5), (71, -4.5)])
add_polygon(sketch17, [(51, -4.5), (51, 23.5), (44.454911, -4.5)])
sketch17.addConstraint(Sketcher.Constraint("Vertical", 1))
sketch17.addConstraint(Sketcher.Constraint("Horizontal", 2))
sketch17.addConstraint(Sketcher.Constraint("Vertical", 3))
sketch17.addConstraint(Sketcher.Constraint("Horizontal", 5))
sketch17.addConstraint(Sketcher.Constraint("Horizontal", 0, 2, 3, 2))
sketch17.addConstraint(Sketcher.Constraint("Horizontal", 2, 2, 4, 2))
sketch17.addConstraint(Sketcher.Constraint("Equal", 2, 5))
sketch17.addConstraint(Sketcher.Constraint("DistanceY", 1, 2, 1, 1, 28.0))
sketch17.addConstraint(Sketcher.Constraint("DistanceX", -1, 1, 0, 2, 71.0))
sketch17.addConstraint(Sketcher.Constraint("DistanceX", -1, 1, 3, 2, 51.0))
sketch17.addConstraint(Sketcher.Constraint("DistanceY", -1, 1, 0, 2, 23.5))
sketch17.addConstraint(Sketcher.Constraint("DistanceX", 2, 1, 2, 2, 6.545089))
pad12 = body.newObject("PartDesign::Pad", "Pad011")
pad12.Profile = sketch17
pad12.Length = 2
pad12.Reversed = True
doc.recompute()

fillet = body.newObject("PartDesign::Fillet", "Fillet")
fillet.Base = (pad12, edges_at(pad12, [(77.545, -4.5, 110.243), (44.455, -4.5, 110.243)]))
fillet.Radius = 10

sketch18 = body.newObject("Sketcher::SketchObject", "Sketch017")
sketch18.AttachmentSupport = (doc.getObject("XZ_Plane"), [""])
sketch18.MapMode = "FlatFace"
sketch18.AttachmentOffset = App.Placement(Vector(0, 0, 4.5), App.Rotation())
add_polygon(sketch18, [(51, 116.271803), (51, 118.271803), (71, 118.271803), (71, 116.271803)])
sketch18.addConstraint(Sketcher.Constraint("Vertical", 0))
sketch18.addConstraint(Sketcher.Constraint("Horizontal", 1))
sketch18.addConstraint(Sketcher.Constraint("Vertical", 2))
sketch18.addConstraint(Sketcher.Constraint("Horizontal", 3))
sketch18.addConstraint(Sketcher.Constraint("DistanceX", 1, 1, 1, 2, 20.0))
sketch18.addConstraint(Sketcher.Constraint("DistanceY", 0, 1, 0, 2, 2.0))
sketch18.addConstraint(Sketcher.Constraint("DistanceX", -1, 1, 0, 2, 51.0))
sketch18.addConstraint(Sketcher.Constraint("DistanceY", -1, 1, 0, 2, 118.271803))
pad13 = body.newObject("PartDesign::Pad", "Pad012")
pad13.Profile = sketch18
pad13.Length = 28
pad13.Reversed = True

sketch19 = body.newObject("Sketcher::SketchObject", "Sketch018")
sketch19.AttachmentSupport = (doc.getObject("YZ_Plane"), [""])
sketch19.MapMode = "FlatFace"
sketch19.AttachmentOffset = App.Placement(Vector(0, 0, 71), App.Rotation())
add_polygon(sketch19, [(-4.5, 118.271803), (15.5, 118.271803), (-4.5, 127.271803)])
sketch19.addConstraint(Sketcher.Constraint("Horizontal", 0))
sketch19.addConstraint(Sketcher.Constraint("Vertical", 2))
sketch19.addConstraint(Sketcher.Constraint("DistanceX", 0, 1, 0, 2, 20.0))
sketch19.addConstraint(Sketcher.Constraint("DistanceY", 2, 2, 2, 1, 9.0))
sketch19.addConstraint(Sketcher.Constraint("DistanceX", -1, 1, 0, 2, 15.5))
sketch19.addConstraint(Sketcher.Constraint("DistanceY", -1, 1, 0, 2, 118.271803))
pad14 = body.newObject("PartDesign::Pad", "Pad013")
pad14.Profile = sketch19
pad14.Length = 20
pad14.Reversed = True

sketch20 = body.newObject("Sketcher::SketchObject", "Sketch019")
sketch20.AttachmentSupport = (doc.getObject("YZ_Plane"), [""])
sketch20.MapMode = "FlatFace"
sketch20.AttachmentOffset = App.Placement(Vector(0, 0, 71), App.Rotation())
add_polygon(sketch20, [(-2.5, 118.236471), (10.68955, 118.236471), (-2.5, 123.84042)])
sketch20.addConstraint(Sketcher.Constraint("Horizontal", 0))
sketch20.addConstraint(Sketcher.Constraint("Vertical", 2))
sketch20.addConstraint(Sketcher.Constraint("DistanceX", 1, 2, -1, 1, 2.5))
sketch20.addConstraint(Sketcher.Constraint("DistanceX", 0, 1, 0, 2, 13.18955))
sketch20.addConstraint(Sketcher.Constraint("DistanceY", 2, 2, 2, 1, 5.603949))
sketch20.addConstraint(Sketcher.Constraint("DistanceY", -1, 1, 0, 2, 118.236471))
pocket6 = body.newObject("PartDesign::Pocket", "Pocket005")
pocket6.Profile = sketch20
pocket6.Length = 20

doc.recompute()
